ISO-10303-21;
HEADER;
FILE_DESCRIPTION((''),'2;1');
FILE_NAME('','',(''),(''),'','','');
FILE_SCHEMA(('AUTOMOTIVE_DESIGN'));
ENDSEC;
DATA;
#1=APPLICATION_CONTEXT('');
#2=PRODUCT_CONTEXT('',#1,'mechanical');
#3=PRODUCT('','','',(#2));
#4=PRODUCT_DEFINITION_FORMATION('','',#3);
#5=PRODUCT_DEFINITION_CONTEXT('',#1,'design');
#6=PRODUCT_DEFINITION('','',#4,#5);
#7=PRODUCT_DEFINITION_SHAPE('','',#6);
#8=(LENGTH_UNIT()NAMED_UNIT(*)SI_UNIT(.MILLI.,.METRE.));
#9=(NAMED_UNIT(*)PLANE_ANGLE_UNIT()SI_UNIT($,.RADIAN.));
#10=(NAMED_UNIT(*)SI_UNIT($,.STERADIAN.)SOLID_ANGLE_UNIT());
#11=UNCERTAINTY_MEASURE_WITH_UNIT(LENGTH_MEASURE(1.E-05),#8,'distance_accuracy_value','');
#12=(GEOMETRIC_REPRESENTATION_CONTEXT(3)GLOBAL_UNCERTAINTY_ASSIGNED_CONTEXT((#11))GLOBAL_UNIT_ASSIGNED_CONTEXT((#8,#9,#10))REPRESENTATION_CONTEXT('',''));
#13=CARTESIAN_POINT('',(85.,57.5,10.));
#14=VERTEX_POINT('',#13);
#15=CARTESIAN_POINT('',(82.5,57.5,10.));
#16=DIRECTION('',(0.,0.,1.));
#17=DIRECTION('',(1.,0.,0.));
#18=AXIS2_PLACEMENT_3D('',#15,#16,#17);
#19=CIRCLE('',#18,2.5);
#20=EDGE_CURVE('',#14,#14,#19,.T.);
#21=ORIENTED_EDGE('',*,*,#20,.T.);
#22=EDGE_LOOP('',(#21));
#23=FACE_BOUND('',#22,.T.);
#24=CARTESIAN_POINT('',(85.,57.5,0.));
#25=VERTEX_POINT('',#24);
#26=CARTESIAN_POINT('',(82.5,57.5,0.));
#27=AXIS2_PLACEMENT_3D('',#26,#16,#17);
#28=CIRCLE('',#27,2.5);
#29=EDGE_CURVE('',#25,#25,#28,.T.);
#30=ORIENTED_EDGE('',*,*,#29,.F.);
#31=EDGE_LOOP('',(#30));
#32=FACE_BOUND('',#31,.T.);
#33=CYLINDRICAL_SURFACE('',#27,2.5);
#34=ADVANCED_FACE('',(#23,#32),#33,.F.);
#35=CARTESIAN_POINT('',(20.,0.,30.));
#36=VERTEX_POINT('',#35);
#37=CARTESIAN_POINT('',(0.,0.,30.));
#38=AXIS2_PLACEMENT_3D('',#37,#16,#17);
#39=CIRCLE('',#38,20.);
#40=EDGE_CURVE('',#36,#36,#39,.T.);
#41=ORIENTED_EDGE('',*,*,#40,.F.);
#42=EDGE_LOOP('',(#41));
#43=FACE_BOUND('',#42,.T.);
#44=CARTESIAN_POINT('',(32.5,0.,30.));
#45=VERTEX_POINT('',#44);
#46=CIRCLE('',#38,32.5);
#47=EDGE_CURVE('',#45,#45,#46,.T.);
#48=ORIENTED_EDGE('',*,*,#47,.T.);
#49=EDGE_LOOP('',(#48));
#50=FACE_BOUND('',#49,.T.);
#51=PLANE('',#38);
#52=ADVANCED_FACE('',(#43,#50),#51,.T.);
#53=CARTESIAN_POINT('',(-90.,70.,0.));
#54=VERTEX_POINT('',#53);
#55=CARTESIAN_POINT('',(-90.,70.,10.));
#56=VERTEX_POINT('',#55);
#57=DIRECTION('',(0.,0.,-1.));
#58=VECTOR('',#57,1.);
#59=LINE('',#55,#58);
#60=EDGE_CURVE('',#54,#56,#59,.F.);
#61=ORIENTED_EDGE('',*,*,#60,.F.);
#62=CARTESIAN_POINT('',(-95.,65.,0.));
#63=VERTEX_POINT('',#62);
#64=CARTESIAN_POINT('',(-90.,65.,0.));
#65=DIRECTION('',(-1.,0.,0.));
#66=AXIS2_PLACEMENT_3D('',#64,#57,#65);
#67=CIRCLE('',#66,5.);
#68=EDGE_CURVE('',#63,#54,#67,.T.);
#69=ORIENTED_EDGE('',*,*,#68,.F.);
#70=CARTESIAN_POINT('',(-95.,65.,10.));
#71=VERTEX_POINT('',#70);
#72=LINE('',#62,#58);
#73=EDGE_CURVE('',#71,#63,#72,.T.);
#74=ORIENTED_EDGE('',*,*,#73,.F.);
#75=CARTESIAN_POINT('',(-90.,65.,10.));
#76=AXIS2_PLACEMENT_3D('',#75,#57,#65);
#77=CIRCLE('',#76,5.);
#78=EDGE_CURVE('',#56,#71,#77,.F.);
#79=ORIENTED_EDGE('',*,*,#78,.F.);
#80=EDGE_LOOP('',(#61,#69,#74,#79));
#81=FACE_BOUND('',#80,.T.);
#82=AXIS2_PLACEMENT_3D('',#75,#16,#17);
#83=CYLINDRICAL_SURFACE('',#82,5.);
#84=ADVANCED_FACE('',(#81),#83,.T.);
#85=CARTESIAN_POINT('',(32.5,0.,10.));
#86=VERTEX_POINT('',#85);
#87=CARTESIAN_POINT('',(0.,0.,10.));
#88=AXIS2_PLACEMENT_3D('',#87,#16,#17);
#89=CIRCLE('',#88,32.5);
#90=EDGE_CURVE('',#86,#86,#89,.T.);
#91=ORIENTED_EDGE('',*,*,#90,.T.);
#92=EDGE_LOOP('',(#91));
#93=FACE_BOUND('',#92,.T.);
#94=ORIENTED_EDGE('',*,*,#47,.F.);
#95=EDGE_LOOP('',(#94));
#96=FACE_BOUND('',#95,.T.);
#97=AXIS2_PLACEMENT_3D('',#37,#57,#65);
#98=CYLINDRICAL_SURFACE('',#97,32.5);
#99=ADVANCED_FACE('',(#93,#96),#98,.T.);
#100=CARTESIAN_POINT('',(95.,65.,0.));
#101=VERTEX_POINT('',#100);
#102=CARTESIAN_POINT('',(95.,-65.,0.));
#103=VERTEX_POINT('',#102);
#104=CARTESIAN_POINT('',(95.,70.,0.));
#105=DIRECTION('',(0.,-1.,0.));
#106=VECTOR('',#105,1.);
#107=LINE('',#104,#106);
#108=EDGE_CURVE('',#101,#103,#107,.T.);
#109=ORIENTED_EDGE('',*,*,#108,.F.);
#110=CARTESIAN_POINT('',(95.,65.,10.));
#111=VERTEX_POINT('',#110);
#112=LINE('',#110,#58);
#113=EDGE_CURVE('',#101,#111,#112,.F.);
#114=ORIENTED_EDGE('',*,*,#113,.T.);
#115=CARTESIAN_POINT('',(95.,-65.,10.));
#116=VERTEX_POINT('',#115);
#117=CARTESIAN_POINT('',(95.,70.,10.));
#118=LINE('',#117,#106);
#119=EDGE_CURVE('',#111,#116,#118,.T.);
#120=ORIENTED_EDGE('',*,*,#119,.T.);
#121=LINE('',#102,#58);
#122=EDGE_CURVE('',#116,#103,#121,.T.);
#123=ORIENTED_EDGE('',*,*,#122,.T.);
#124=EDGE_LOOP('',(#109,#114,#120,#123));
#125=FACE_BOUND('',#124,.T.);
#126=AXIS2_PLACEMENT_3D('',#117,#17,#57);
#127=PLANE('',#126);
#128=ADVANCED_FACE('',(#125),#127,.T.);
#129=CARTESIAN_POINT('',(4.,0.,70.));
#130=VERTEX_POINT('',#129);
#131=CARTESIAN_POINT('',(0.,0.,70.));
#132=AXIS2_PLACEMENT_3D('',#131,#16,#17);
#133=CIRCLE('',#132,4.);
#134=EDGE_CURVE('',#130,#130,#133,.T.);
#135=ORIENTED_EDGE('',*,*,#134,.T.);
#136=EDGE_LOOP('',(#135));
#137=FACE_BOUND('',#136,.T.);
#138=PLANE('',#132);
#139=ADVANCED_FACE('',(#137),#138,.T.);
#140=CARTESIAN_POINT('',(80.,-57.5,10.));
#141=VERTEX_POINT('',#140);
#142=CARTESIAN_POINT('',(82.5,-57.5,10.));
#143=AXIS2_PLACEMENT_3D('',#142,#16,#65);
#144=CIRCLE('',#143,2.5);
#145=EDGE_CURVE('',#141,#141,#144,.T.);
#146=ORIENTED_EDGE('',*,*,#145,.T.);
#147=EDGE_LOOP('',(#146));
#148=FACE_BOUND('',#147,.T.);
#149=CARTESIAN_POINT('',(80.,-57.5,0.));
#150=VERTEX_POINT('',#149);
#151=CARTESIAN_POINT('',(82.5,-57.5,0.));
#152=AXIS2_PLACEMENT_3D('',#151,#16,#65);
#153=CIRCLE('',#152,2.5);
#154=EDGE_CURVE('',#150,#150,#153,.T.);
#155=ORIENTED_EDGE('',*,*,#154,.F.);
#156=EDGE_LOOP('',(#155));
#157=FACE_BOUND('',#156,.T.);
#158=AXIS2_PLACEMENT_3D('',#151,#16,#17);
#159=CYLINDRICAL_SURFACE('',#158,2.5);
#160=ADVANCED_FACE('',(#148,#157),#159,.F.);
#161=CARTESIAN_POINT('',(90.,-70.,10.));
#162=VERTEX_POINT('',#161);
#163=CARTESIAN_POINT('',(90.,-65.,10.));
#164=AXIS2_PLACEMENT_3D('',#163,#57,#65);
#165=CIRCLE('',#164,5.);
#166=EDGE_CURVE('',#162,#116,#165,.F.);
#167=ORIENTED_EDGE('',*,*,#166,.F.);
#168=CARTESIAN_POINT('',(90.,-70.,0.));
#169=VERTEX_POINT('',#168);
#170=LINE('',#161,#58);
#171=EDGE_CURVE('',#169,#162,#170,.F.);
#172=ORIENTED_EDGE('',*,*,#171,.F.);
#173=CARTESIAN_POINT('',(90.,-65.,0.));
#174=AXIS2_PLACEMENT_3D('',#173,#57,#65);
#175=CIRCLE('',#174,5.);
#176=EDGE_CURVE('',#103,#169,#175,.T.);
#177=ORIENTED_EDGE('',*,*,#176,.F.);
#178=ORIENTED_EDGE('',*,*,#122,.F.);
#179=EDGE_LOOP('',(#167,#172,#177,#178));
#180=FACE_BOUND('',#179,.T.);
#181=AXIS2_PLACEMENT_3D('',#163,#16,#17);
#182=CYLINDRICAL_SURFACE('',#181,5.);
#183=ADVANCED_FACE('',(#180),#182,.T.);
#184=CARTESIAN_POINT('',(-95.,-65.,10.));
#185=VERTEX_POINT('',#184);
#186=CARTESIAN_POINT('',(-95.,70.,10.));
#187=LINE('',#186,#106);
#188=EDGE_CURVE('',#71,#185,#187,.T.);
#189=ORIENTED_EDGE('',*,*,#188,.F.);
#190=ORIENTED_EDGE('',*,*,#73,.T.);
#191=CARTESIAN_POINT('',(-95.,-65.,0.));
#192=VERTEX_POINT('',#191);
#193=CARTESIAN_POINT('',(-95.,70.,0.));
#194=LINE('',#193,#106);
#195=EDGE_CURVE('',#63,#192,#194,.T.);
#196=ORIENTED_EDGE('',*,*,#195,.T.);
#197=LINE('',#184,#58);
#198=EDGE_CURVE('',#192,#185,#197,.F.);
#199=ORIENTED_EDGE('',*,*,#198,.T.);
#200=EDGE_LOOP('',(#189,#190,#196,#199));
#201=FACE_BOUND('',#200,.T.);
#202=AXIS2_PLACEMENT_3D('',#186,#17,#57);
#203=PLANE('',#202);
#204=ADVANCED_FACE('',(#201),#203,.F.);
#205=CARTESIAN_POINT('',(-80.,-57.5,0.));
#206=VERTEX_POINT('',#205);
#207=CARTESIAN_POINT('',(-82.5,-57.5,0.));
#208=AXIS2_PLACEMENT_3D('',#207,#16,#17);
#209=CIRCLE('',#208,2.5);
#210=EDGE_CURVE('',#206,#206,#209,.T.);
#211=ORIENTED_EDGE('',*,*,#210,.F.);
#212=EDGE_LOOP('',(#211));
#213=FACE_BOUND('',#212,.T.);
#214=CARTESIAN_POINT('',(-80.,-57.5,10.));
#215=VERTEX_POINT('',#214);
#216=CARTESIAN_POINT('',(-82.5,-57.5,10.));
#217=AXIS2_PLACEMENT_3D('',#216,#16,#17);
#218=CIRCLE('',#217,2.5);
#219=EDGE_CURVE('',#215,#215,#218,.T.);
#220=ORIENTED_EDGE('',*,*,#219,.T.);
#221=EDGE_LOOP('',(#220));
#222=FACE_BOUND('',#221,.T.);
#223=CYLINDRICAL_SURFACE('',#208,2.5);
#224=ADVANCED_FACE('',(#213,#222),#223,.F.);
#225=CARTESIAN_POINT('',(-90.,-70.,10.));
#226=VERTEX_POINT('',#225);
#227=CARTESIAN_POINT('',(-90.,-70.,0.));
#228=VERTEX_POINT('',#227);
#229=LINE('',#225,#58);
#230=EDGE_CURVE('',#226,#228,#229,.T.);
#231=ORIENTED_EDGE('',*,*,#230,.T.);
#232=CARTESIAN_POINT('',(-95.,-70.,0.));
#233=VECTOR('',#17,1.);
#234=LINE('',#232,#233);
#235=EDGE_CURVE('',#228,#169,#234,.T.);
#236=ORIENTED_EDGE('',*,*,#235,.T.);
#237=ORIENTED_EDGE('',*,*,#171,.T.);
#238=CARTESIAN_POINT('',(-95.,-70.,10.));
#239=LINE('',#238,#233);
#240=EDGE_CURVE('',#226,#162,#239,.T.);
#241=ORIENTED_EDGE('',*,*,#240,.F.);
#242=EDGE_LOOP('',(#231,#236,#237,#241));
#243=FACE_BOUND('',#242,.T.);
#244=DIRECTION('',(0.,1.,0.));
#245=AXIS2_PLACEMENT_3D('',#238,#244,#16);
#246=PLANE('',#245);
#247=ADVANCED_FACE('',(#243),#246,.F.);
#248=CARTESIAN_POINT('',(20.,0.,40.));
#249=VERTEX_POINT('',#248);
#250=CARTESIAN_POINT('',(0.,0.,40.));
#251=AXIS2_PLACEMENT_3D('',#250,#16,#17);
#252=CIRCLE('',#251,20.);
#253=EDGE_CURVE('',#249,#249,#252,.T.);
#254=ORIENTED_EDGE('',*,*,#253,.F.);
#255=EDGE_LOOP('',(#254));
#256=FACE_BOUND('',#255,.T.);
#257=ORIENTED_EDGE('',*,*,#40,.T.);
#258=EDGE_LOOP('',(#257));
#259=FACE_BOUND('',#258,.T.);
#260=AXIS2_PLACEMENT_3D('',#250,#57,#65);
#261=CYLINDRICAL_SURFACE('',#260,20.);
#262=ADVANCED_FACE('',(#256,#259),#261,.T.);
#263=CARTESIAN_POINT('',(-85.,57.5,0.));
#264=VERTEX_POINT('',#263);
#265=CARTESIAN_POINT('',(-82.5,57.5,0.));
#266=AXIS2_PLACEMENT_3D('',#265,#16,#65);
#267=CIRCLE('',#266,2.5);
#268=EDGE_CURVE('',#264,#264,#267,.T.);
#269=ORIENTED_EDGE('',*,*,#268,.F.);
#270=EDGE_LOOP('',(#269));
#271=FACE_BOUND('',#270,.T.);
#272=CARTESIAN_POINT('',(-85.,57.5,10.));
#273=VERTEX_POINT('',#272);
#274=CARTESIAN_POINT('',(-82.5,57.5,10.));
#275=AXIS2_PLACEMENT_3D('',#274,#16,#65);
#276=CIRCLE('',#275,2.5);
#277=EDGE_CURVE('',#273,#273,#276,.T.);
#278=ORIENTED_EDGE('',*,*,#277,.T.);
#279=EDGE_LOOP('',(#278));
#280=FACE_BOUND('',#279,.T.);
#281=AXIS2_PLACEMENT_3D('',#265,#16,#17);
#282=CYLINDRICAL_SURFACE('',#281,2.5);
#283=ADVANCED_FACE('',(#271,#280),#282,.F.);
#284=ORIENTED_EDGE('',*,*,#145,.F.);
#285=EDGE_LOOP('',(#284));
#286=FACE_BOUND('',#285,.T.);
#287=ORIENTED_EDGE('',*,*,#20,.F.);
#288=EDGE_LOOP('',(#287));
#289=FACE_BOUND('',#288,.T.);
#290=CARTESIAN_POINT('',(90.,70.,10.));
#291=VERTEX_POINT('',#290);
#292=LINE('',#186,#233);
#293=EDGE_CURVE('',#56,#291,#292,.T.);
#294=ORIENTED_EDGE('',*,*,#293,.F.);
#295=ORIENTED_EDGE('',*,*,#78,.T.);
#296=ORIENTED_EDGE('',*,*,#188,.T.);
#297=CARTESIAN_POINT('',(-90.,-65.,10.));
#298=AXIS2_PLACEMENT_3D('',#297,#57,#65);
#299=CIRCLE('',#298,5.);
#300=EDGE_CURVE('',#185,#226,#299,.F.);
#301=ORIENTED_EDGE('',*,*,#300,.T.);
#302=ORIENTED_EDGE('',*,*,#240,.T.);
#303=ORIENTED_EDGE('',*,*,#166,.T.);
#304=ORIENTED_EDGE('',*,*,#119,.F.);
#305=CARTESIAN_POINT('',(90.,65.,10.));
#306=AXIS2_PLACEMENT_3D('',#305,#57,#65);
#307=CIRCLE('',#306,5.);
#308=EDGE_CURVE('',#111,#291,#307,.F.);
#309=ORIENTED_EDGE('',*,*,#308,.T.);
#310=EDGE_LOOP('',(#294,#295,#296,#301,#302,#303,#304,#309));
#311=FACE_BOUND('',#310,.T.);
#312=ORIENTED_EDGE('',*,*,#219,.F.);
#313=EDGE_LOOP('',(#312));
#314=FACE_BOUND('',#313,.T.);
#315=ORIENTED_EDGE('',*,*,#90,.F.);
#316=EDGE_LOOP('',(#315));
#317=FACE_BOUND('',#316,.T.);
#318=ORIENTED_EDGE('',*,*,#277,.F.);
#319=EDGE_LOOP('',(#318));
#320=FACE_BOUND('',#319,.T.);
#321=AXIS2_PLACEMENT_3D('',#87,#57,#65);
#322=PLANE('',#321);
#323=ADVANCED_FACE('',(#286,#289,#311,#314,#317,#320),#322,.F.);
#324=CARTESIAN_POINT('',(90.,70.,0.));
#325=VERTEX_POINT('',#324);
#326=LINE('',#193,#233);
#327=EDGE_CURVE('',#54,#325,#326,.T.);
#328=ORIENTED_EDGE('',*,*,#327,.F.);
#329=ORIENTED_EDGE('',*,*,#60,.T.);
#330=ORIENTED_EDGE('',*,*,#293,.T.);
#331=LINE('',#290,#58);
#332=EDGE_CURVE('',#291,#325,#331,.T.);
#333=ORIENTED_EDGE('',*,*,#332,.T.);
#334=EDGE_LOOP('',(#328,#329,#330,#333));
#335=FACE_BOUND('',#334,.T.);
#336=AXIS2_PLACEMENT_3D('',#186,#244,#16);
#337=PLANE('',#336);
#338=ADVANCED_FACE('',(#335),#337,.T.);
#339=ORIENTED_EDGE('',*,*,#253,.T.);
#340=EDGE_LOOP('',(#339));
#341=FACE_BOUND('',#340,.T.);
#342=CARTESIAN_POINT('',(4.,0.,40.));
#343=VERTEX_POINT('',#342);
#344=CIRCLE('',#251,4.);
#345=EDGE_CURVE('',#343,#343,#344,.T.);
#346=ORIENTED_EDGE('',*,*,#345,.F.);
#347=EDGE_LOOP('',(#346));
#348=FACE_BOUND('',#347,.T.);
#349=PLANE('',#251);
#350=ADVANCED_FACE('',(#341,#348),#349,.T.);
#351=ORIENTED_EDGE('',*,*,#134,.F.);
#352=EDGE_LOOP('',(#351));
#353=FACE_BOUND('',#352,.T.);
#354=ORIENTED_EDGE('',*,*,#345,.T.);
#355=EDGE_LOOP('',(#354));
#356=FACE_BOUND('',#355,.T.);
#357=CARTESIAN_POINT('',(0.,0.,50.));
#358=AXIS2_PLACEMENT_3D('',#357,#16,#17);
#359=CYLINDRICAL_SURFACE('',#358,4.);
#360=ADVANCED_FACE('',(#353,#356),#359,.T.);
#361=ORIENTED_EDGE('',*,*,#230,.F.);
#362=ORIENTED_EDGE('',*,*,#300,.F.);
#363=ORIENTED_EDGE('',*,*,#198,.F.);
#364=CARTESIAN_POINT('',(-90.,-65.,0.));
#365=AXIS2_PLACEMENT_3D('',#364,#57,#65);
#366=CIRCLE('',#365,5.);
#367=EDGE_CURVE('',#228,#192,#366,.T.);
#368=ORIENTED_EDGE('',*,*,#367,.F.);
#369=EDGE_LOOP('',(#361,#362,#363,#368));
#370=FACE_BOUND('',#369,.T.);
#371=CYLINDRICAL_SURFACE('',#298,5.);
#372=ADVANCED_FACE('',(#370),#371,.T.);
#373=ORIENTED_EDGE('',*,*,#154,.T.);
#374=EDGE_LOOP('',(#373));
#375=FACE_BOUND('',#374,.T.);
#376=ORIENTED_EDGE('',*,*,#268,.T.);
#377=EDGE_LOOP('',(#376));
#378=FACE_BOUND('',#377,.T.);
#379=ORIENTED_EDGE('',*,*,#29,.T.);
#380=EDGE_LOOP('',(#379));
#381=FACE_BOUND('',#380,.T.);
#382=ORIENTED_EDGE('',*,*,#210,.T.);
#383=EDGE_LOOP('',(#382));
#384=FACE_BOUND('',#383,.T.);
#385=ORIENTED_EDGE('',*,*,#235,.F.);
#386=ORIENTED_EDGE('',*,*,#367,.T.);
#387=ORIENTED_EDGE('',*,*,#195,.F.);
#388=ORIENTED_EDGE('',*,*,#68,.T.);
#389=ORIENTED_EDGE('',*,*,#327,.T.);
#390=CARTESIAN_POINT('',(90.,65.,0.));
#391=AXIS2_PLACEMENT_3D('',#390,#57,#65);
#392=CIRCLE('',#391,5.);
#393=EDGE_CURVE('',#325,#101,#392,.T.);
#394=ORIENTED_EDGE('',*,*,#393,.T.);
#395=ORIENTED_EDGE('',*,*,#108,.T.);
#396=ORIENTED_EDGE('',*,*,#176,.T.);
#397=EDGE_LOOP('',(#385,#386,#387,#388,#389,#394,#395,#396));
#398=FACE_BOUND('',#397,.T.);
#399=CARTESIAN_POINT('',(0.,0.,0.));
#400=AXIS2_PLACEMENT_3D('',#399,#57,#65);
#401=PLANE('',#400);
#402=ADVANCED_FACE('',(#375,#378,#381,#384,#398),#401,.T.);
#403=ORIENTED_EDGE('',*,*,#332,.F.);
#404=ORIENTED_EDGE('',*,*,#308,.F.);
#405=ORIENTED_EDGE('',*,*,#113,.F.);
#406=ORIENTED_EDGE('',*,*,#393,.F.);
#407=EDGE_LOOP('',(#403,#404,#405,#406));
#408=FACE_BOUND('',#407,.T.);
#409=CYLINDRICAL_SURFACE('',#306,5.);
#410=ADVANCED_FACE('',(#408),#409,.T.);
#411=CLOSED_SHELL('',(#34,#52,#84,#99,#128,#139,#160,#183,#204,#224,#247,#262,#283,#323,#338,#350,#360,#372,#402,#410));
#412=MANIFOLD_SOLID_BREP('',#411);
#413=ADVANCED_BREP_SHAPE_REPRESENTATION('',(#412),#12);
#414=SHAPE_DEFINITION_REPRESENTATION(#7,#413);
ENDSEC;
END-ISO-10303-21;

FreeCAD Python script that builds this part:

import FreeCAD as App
import Part
import Sketcher
Q = App.Units.Quantity


def edges_at(feature, points):
    """Names of the edges that pass closest to the given points."""
    edges = feature.Shape.Edges
    near = lambda p: min(range(len(edges)), key=lambda i: edges[i].distToShape(Part.Vertex(*p))[0])
    return sorted({f"Edge{near(p) + 1}" for p in points})

doc = App.newDocument("Part")
body = doc.addObject("PartDesign::Body", "Body")

# Sketch on XY plane
sketch1 = body.newObject("Sketcher::SketchObject", "Sketch")
sketch1.AttachmentSupport = (doc.getObject("XY_Plane"), [""])
sketch1.MapMode = "FlatFace"
sketch1.addGeometry([
    Part.LineSegment(App.Vector(-95, 70, 0), App.Vector(-95, -70, 0)),
    Part.LineSegment(App.Vector(-95, -70, 0), App.Vector(95, -70, 0)),
    Part.LineSegment(App.Vector(95, -70, 0), App.Vector(95, 70, 0)),
    Part.LineSegment(App.Vector(95, 70, 0), App.Vector(-95, 70, 0)),
], False)
sketch1.addConstraint([
    Sketcher.Constraint("Coincident", 0, 2, 1, 1),
    Sketcher.Constraint("Coincident", 1, 2, 2, 1),
    Sketcher.Constraint("Coincident", 2, 2, 3, 1),
    Sketcher.Constraint("Coincident", 3, 2, 0, 1),
    Sketcher.Constraint("Vertical", 0),
    Sketcher.Constraint("Horizontal", 1),
    Sketcher.Constraint("Vertical", 2),
    Sketcher.Constraint("Horizontal", 3),
    Sketcher.Constraint("Symmetric", 0, 2, 2, 2, -1, 1),
    Sketcher.Constraint("DistanceX", 1, 1, 1, 2, Q("190 mm")),
    Sketcher.Constraint("DistanceY", 0, 2, 0, 1, Q("140 mm")),
])
pad1 = body.newObject("PartDesign::Pad", "Pad")
pad1.Profile = sketch1
pad1.Length = 10
doc.recompute()

fillet = body.newObject("PartDesign::Fillet", "Fillet")
fillet.Base = (pad1, edges_at(pad1, [
    (-95, -70, 5),
    (-95, 70, 5),
    (95, 70, 5),
    (95, -70, 5),
]))
fillet.Radius = 5

# Sketch on XY plane
sketch2 = body.newObject("Sketcher::SketchObject", "Sketch001")
sketch2.AttachmentSupport = (doc.getObject("XY_Plane"), [""])
sketch2.MapMode = "FlatFace"
sketch2.AttachmentOffset = App.Placement(App.Vector(0, 0, 10), App.Rotation())
sketch2.addGeometry(Part.Circle(App.Vector(0, 0, 0), App.Vector(0, 0, 1), 32), False)
sketch2.addConstraint([
    Sketcher.Constraint("Coincident", 0, 3, -1, 1),
    Sketcher.Constraint("Diameter", 0, Q("65 mm")),
])
pad2 = body.newObject("PartDesign::Pad", "Pad001")
pad2.Profile = sketch2
pad2.Length = 20

# Sketch on XY plane
sketch3 = body.newObject("Sketcher::SketchObject", "Sketch002")
sketch3.AttachmentSupport = (doc.getObject("XY_Plane"), [""])
sketch3.MapMode = "FlatFace"
sketch3.AttachmentOffset = App.Placement(App.Vector(0, 0, 30), App.Rotation())
sketch3.addGeometry(Part.Circle(App.Vector(0, 0, 0), App.Vector(0, 0, 1), 20), False)
sketch3.addConstraint([
    Sketcher.Constraint("Coincident", 0, 3, -1, 1),
    Sketcher.Constraint("Diameter", 0, Q("40 mm")),
])
pad3 = body.newObject("PartDesign::Pad", "Pad002")
pad3.Profile = sketch3
pad3.Length = 10

# Sketch on XY plane
sketch4 = body.newObject("Sketcher::SketchObject", "Sketch003")
sketch4.AttachmentSupport = (doc.getObject("XY_Plane"), [""])
sketch4.MapMode = "FlatFace"
sketch4.AttachmentOffset = App.Placement(App.Vector(0, 0, 40), App.Rotation())
sketch4.addGeometry(Part.Circle(App.Vector(0, 0, 0), App.Vector(0, 0, 1), 10), False)
sketch4.addConstraint([
    Sketcher.Constraint("Coincident", 0, 3, -1, 1),
    Sketcher.Constraint("Diameter", 0, Q("20 mm")),
])
pad4 = body.newObject("PartDesign::Pad", "Pad003")
pad4.Profile = sketch4
pad4.Length = 20

# Sketch on XY plane
sketch5 = body.newObject("Sketcher::SketchObject", "Sketch004")
sketch5.AttachmentSupport = (doc.getObject("XY_Plane"), [""])
sketch5.MapMode = "FlatFace"
sketch5.AttachmentOffset = App.Placement(App.Vector(0, 0, 50), App.Rotation())
sketch5.addGeometry([
    Part.Circle(App.Vector(0, 0, 0), App.Vector(0, 0, 1), 10),
    Part.Circle(App.Vector(0, 0, 0), App.Vector(0, 0, 1), 4),
], False)
sketch5.addConstraint([
    Sketcher.Constraint("Coincident", 0, 3, -1, 1),
    Sketcher.Constraint("Coincident", 1, 3, -1, 1),
    Sketcher.Constraint("Diameter", 0, Q("20 mm")),
    Sketcher.Constraint("Diameter", 1, Q("8 mm")),
])
pocket1 = body.newObject("PartDesign::Pocket", "Pocket")
pocket1.Profile = sketch5
pocket1.Length = 10
pocket1.Reversed = True

# Sketch on XY plane
sketch6 = body.newObject("Sketcher::SketchObject", "Sketch005")
sketch6.AttachmentSupport = (doc.getObject("XY_Plane"), [""])
sketch6.MapMode = "FlatFace"
sketch6.AttachmentOffset = App.Placement(App.Vector(0, 0, 40), App.Rotation())
sketch6.addGeometry([
    Part.Circle(App.Vector(0, 0, 0), App.Vector(0, 0, 1), 10),
    Part.Circle(App.Vector(0, 0, 0), App.Vector(0, 0, 1), 4),
], False)
sketch6.addConstraint([
    Sketcher.Constraint("Coincident", 0, 3, -1, 1),
    Sketcher.Constraint("Coincident", 1, 3, -1, 1),
    Sketcher.Constraint("Diameter", 0, Q("20 mm")),
    Sketcher.Constraint("Diameter", 1, Q("8 mm")),
])
pocket2 = body.newObject("PartDesign::Pocket", "Pocket001")
pocket2.Profile = sketch6
pocket2.Length = 10
pocket2.Reversed = True

# Sketch on XY plane
sketch7 = body.newObject("Sketcher::SketchObject", "Sketch006")
sketch7.AttachmentSupport = (doc.getObject("XY_Plane"), [""])
sketch7.MapMode = "FlatFace"
sketch7.AttachmentOffset = App.Placement(App.Vector(0, 0, 60), App.Rotation())
sketch7.addGeometry(Part.Circle(App.Vector(0, 0, 0), App.Vector(0, 0, 1), 4), False)
sketch7.addConstraint([
    Sketcher.Constraint("Coincident", 0, 3, -1, 1),
    Sketcher.Constraint("Diameter", 0, Q("8 mm")),
])
pad5 = body.newObject("PartDesign::Pad", "Pad004")
pad5.Profile = sketch7
pad5.Length = 10

# Sketch on XY plane
sketch8 = body.newObject("Sketcher::SketchObject", "Sketch007")
sketch8.AttachmentSupport = (doc.getObject("XY_Plane"), [""])
sketch8.MapMode = "FlatFace"
sketch8.AttachmentOffset = App.Placement(App.Vector(0, 0, 10), App.Rotation())
sketch8.addGeometry([
    Part.Circle(App.Vector(82.5, 57.5, 0), App.Vector(0, 0, 1), 2.5),
    Part.Circle(App.Vector(82.5, -57.5, 0), App.Vector(0, 0, 1), 2.5),
    Part.Circle(App.Vector(-82.5, -57.5, 0), App.Vector(0, 0, 1), 2.5),
    Part.Circle(App.Vector(-82.5, 57.5, 0), App.Vector(0, 0, 1), 2.5),
], False)
sketch8.addConstraint([
    Sketcher.Constraint("Equal", 0, 1),
    Sketcher.Constraint("Equal", 1, 2),
    Sketcher.Constraint("Equal", 2, 3),
    Sketcher.Constraint("Symmetric", 0, 3, 2, 3, -1, 1),
    Sketcher.Constraint("Symmetric", 1, 3, 3, 3, -1, 1),
    Sketcher.Constraint("Symmetric", 1, 3, 2, 3, -2),
    Sketcher.Constraint("Diameter", 0, Q("5 mm")),
    Sketcher.Constraint("DistanceY", 1, 3, 0, 3, Q("115 mm")),
    Sketcher.Constraint("DistanceX", 2, 3, 1, 3, Q("165 mm")),
])
pocket3 = body.newObject("PartDesign::Pocket", "Pocket002")
pocket3.Profile = sketch8
pocket3.Length = 10

doc.recompute()
